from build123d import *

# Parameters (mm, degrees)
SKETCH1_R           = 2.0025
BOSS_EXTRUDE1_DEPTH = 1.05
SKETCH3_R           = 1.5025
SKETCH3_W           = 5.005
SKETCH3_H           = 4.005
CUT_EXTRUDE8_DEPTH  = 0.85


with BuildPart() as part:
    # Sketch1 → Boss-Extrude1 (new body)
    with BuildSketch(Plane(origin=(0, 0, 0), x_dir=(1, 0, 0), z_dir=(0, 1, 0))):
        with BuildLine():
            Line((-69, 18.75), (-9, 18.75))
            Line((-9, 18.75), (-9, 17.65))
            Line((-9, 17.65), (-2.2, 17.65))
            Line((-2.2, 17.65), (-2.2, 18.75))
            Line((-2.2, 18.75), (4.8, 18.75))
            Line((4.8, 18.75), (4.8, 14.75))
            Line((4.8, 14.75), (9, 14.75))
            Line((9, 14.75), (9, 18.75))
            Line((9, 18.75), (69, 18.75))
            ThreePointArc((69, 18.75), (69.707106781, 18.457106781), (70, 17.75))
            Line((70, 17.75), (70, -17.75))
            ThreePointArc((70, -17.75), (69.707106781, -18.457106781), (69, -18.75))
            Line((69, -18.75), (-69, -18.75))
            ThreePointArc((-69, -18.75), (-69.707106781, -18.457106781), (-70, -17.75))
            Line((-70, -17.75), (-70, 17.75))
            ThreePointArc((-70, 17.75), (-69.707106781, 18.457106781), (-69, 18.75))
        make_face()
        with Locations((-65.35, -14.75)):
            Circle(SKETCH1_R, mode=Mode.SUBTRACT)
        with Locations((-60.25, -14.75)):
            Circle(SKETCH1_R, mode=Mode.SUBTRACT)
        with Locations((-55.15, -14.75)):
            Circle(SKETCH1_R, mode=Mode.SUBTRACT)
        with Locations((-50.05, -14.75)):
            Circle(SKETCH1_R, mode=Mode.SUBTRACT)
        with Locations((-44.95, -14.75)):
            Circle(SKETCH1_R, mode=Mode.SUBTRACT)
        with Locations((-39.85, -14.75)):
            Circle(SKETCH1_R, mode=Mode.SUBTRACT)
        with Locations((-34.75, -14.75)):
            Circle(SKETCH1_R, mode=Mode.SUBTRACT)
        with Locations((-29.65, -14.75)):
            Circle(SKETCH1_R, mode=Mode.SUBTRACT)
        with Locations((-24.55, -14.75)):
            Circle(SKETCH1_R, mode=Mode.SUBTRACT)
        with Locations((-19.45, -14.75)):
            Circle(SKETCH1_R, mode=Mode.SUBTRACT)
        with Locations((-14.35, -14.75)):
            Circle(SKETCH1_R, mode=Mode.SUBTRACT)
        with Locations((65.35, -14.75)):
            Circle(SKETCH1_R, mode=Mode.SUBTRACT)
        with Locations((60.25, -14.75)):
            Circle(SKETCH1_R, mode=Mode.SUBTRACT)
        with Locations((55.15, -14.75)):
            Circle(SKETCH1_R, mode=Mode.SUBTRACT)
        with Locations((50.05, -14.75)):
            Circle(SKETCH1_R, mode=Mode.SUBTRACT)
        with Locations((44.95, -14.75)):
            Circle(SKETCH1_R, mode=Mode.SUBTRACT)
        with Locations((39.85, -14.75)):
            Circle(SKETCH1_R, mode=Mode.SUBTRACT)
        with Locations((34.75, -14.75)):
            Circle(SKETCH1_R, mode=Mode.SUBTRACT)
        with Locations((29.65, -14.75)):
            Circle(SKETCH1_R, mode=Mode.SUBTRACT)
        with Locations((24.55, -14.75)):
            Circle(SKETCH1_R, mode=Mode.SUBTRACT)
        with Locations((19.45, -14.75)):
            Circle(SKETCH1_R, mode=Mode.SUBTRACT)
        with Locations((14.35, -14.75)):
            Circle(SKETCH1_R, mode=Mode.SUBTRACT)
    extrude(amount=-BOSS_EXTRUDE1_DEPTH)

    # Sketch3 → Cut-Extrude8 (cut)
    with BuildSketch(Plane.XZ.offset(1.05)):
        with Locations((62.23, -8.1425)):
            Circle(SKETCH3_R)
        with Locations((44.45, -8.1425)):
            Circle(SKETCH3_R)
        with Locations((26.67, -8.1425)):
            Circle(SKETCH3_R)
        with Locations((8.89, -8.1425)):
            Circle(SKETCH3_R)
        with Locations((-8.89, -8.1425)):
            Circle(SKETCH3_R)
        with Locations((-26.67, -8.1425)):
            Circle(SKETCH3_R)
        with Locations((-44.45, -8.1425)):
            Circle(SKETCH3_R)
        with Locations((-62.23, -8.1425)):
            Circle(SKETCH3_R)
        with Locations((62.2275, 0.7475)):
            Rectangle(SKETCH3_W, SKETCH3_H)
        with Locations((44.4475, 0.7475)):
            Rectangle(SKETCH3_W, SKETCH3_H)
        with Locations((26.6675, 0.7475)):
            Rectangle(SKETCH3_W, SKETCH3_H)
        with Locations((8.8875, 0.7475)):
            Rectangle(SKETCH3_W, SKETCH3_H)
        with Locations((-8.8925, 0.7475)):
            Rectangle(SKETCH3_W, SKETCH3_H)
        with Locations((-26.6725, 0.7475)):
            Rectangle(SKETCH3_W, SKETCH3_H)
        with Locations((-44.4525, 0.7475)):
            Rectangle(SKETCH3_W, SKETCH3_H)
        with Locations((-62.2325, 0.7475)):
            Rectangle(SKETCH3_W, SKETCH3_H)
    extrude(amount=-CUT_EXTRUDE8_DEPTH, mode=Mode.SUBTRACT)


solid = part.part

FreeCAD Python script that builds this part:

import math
import FreeCAD as App
import Part
import Sketcher
Q = App.Units.Quantity

doc = App.newDocument("Part")
body = doc.addObject("PartDesign::Body", "Body")

# Sketch on XZ plane
sketch1 = body.newObject("Sketcher::SketchObject", "Sketch")
sketch1.AttachmentSupport = (doc.getObject("XZ_Plane"), [""])
sketch1.MapMode = "FlatFace"
sketch1.addGeometry([
    Part.LineSegment(App.Vector(-9, -18.8, 0), App.Vector(-69, -18.8, 0)),  # 0
    Part.ArcOfCircle(Part.Circle(App.Vector(-69, -17.7, 0), App.Vector(0, 0, 1), 1), math.radians(-180), math.radians(-90)),  # 1
    Part.LineSegment(App.Vector(-70, -17.8, 0), App.Vector(-70, 17.8, 0)),  # 2
    Part.ArcOfCircle(Part.Circle(App.Vector(-69, 17.7, 0), App.Vector(0, 0, 1), 1), math.radians(90), math.radians(180)),  # 3
    Part.LineSegment(App.Vector(-69, 18.8, 0), App.Vector(69, 18.8, 0)),  # 4
    Part.ArcOfCircle(Part.Circle(App.Vector(69, 17.7, 0), App.Vector(0, 0, 1), 1), math.radians(0), math.radians(90)),  # 5
    Part.LineSegment(App.Vector(70, 17.8, 0), App.Vector(70, -17.8, 0)),  # 6
    Part.ArcOfCircle(Part.Circle(App.Vector(69, -17.7, 0), App.Vector(0, 0, 1), 1), math.radians(-90), math.radians(0)),  # 7
    Part.LineSegment(App.Vector(69, -18.8, 0), App.Vector(9, -18.8, 0)),  # 8
    Part.LineSegment(App.Vector(9, -18.8, 0), App.Vector(9, -14.8, 0)),  # 9
    Part.LineSegment(App.Vector(9, -14.8, 0), App.Vector(4.8, -14.8, 0)),  # 10
    Part.LineSegment(App.Vector(4.8, -14.8, 0), App.Vector(4.8, -18.8, 0)),  # 11
    Part.LineSegment(App.Vector(4.8, -18.8, 0), App.Vector(-2.2, -18.8, 0)),  # 12
    Part.LineSegment(App.Vector(-2.2, -18.8, 0), App.Vector(-2.2, -17.6, 0)),  # 13
    Part.LineSegment(App.Vector(-2.2, -17.6, 0), App.Vector(-9, -17.6, 0)),  # 14
    Part.LineSegment(App.Vector(-9, -17.6, 0), App.Vector(-9, -18.8, 0)),  # 15
    Part.Circle(App.Vector(65.3, 14.8, 0), App.Vector(0, 0, 1), 2),  # 16
    Part.Circle(App.Vector(60.2, 14.8, 0), App.Vector(0, 0, 1), 2),  # 17
    Part.Circle(App.Vector(55.1, 14.8, 0), App.Vector(0, 0, 1), 2),  # 18
    Part.Circle(App.Vector(50, 14.8, 0), App.Vector(0, 0, 1), 2),  # 19
    Part.Circle(App.Vector(45, 14.8, 0), App.Vector(0, 0, 1), 2),  # 20
    Part.Circle(App.Vector(39.9, 14.8, 0), App.Vector(0, 0, 1), 2),  # 21
    Part.Circle(App.Vector(34.8, 14.8, 0), App.Vector(0, 0, 1), 2),  # 22
    Part.Circle(App.Vector(14.3, 14.8, 0), App.Vector(0, 0, 1), 2),  # 23
    Part.Circle(App.Vector(-14.3, 14.8, 0), App.Vector(0, 0, 1), 2),  # 24
    Part.Circle(App.Vector(-34.8, 14.8, 0), App.Vector(0, 0, 1), 2),  # 25
    Part.Circle(App.Vector(-39.9, 14.8, 0), App.Vector(0, 0, 1), 2),  # 26
    Part.Circle(App.Vector(-45, 14.8, 0), App.Vector(0, 0, 1), 2),  # 27
    Part.Circle(App.Vector(-50, 14.8, 0), App.Vector(0, 0, 1), 2),  # 28
    Part.Circle(App.Vector(-55.1, 14.8, 0), App.Vector(0, 0, 1), 2),  # 29
    Part.Circle(App.Vector(-60.2, 14.8, 0), App.Vector(0, 0, 1), 2),  # 30
    Part.Circle(App.Vector(-65.3, 14.8, 0), App.Vector(0, 0, 1), 2),  # 31
    Part.Circle(App.Vector(29.6, 14.8, 0), App.Vector(0, 0, 1), 2),  # 32
    Part.Circle(App.Vector(24.6, 14.8, 0), App.Vector(0, 0, 1), 2),  # 33
    Part.Circle(App.Vector(19.4, 14.8, 0), App.Vector(0, 0, 1), 2),  # 34
    Part.Circle(App.Vector(-19.4, 14.8, 0), App.Vector(0, 0, 1), 2),  # 35
    Part.Circle(App.Vector(-24.6, 14.8, 0), App.Vector(0, 0, 1), 2),  # 36
    Part.Circle(App.Vector(-29.6, 14.8, 0), App.Vector(0, 0, 1), 2),  # 37
], False)
sketch1.addConstraint([
    Sketcher.Constraint("Tangent", 0, 2, 1, 2),
    Sketcher.Constraint("Tangent", 1, 1, 2, 1),
    Sketcher.Constraint("Tangent", 2, 2, 3, 2),
    Sketcher.Constraint("Tangent", 3, 1, 4, 1),
    Sketcher.Constraint("Tangent", 4, 2, 5, 2),
    Sketcher.Constraint("Tangent", 5, 1, 6, 1),
    Sketcher.Constraint("Tangent", 6, 2, 7, 2),
    Sketcher.Constraint("Tangent", 7, 1, 8, 1),
    Sketcher.Constraint("Coincident", 8, 2, 9, 1),
    Sketcher.Constraint("Coincident", 9, 2, 10, 1),
    Sketcher.Constraint("Coincident", 10, 2, 11, 1),
    Sketcher.Constraint("Coincident", 11, 2, 12, 1),
    Sketcher.Constraint("Coincident", 12, 2, 13, 1),
    Sketcher.Constraint("Coincident", 13, 2, 14, 1),
    Sketcher.Constraint("Coincident", 14, 2, 15, 1),
    Sketcher.Constraint("Coincident", 15, 2, 0, 1),
    Sketcher.Constraint("Horizontal", 0),
    Sketcher.Constraint("Vertical", 2),
    Sketcher.Constraint("Horizontal", 4),
    Sketcher.Constraint("Vertical", 6),
    Sketcher.Constraint("Horizontal", 8),
    Sketcher.Constraint("Vertical", 9),
    Sketcher.Constraint("Horizontal", 10),
    Sketcher.Constraint("Vertical", 11),
    Sketcher.Constraint("Horizontal", 12),
    Sketcher.Constraint("Vertical", 13),
    Sketcher.Constraint("Horizontal", 14),
    Sketcher.Constraint("Vertical", 15),
    Sketcher.Constraint("Equal", 1, 3),
    Sketcher.Constraint("Equal", 3, 5),
    Sketcher.Constraint("Equal", 5, 7),
    Sketcher.Constraint("Equal", 16, 17),
    Sketcher.Constraint("Equal", 17, 18),
    Sketcher.Constraint("Equal", 18, 19),
    Sketcher.Constraint("Equal", 19, 20),
    Sketcher.Constraint("Equal", 20, 21),
    Sketcher.Constraint("Equal", 21, 22),
    Sketcher.Constraint("Equal", 22, 23),
    Sketcher.Constraint("Equal", 23, 24),
    Sketcher.Constraint("Equal", 24, 25),
    Sketcher.Constraint("Equal", 25, 26),
    Sketcher.Constraint("Equal", 26, 27),
    Sketcher.Constraint("Equal", 27, 28),
    Sketcher.Constraint("Equal", 28, 29),
    Sketcher.Constraint("Equal", 29, 30),
    Sketcher.Constraint("Equal", 30, 31),
    Sketcher.Constraint("Equal", 31, 32),
    Sketcher.Constraint("Equal", 32, 33),
    Sketcher.Constraint("Equal", 33, 34),
    Sketcher.Constraint("Equal", 34, 35),
    Sketcher.Constraint("Equal", 35, 36),
    Sketcher.Constraint("Equal", 36, 37),
    Sketcher.Constraint("Symmetric", 1, 3, 5, 3, -1, 1),
    Sketcher.Constraint("Symmetric", 23, 3, 24, 3, -2),
    Sketcher.Constraint("Symmetric", 22, 3, 25, 3, -2),
    Sketcher.Constraint("Symmetric", 21, 3, 26, 3, -2),
    Sketcher.Constraint("Symmetric", 20, 3, 27, 3, -2),
    Sketcher.Constraint("Symmetric", 19, 3, 28, 3, -2),
    Sketcher.Constraint("Symmetric", 18, 3, 29, 3, -2),
    Sketcher.Constraint("Symmetric", 17, 3, 30, 3, -2),
    Sketcher.Constraint("Symmetric", 16, 3, 31, 3, -2),
    Sketcher.Constraint("Symmetric", 34, 3, 35, 3, -2),
    Sketcher.Constraint("Symmetric", 33, 3, 36, 3, -2),
    Sketcher.Constraint("Symmetric", 32, 3, 37, 3, -2),
    Sketcher.Constraint("Symmetric", 8, 2, 15, 2, -2),
    Sketcher.Constraint("Horizontal", 16, 3, 17, 3),
    Sketcher.Constraint("Horizontal", 17, 3, 18, 3),
    Sketcher.Constraint("Horizontal", 18, 3, 19, 3),
    Sketcher.Constraint("Horizontal", 19, 3, 20, 3),
    Sketcher.Constraint("Horizontal", 20, 3, 21, 3),
    Sketcher.Constraint("Horizontal", 21, 3, 22, 3),
    Sketcher.Constraint("Horizontal", 22, 3, 23, 3),
    Sketcher.Constraint("Horizontal", 31, 3, 32, 3),
    Sketcher.Constraint("Horizontal", 32, 3, 33, 3),
    Sketcher.Constraint("Horizontal", 33, 3, 34, 3),
    Sketcher.Constraint("Horizontal", 8, 2, 11, 2),
    Sketcher.Constraint("Radius", 1, Q("1 mm")),
    Sketcher.Constraint("DistanceX", 0, 2, 0, 1, Q("60 mm")),
    Sketcher.Constraint("DistanceX", 4, 1, 4, 2, Q("138 mm")),
    Sketcher.Constraint("DistanceX", 12, 2, 12, 1, Q("7 mm")),
    Sketcher.Constraint("DistanceY", 9, 1, 9, 2, Q("4 mm")),
    Sketcher.Constraint("Diameter", 16, Q("4.005 mm")),
    Sketcher.Constraint("DistanceX", 10, 2, 10, 1, Q("4.2 mm")),
    Sketcher.Constraint("DistanceY", 2, 1, 2, 2, Q("35.5 mm")),
    Sketcher.Constraint("DistanceY", 13, 1, 13, 2, Q("1.1 mm")),
    Sketcher.Constraint("DistanceY", 16, 3, 5, 3, Q("3 mm")),
    Sketcher.Constraint("DistanceX", 17, 3, 16, 3, Q("5.1 mm")),
    Sketcher.Constraint("DistanceX", 18, 3, 17, 3, Q("5.1 mm")),
    Sketcher.Constraint("DistanceX", 19, 3, 18, 3, Q("5.1 mm")),
    Sketcher.Constraint("DistanceX", 20, 3, 19, 3, Q("5.1 mm")),
    Sketcher.Constraint("DistanceX", 21, 3, 20, 3, Q("5.1 mm")),
    Sketcher.Constraint("DistanceX", 22, 3, 21, 3, Q("5.1 mm")),
    Sketcher.Constraint("DistanceX", 23, 3, 22, 3, Q("20.4 mm")),
    Sketcher.Constraint("DistanceX", 24, 3, 23, 3, Q("28.7 mm")),
    Sketcher.Constraint("DistanceX", 32, 3, 22, 3, Q("5.1 mm")),
    Sketcher.Constraint("DistanceX", 33, 3, 32, 3, Q("5.1 mm")),
    Sketcher.Constraint("DistanceX", 23, 3, 34, 3, Q("5.1 mm")),
])
pad1 = body.newObject("PartDesign::Pad", "Pad")
pad1.Profile = sketch1
pad1.Length = 1.05

# Sketch on XZ plane
sketch2 = body.newObject("Sketcher::SketchObject", "Sketch001")
sketch2.AttachmentSupport = (doc.getObject("XZ_Plane"), [""])
sketch2.MapMode = "FlatFace"
sketch2.AttachmentOffset = App.Placement(App.Vector(0, 0, 1.05), App.Rotation())
sketch2.addGeometry([
    Part.Circle(App.Vector(62.2, -8.1, 0), App.Vector(0, 0, 1), 1.5),  # 0
    Part.Circle(App.Vector(44.5, -8.1, 0), App.Vector(0, 0, 1), 1.5),  # 1
    Part.Circle(App.Vector(26.7, -8.1, 0), App.Vector(0, 0, 1), 1.5),  # 2
    Part.Circle(App.Vector(8.9, -8.1, 0), App.Vector(0, 0, 1), 1.5),  # 3
    Part.Circle(App.Vector(-8.9, -8.1, 0), App.Vector(0, 0, 1), 1.5),  # 4
    Part.Circle(App.Vector(-26.7, -8.1, 0), App.Vector(0, 0, 1), 1.5),  # 5
    Part.Circle(App.Vector(-44.5, -8.1, 0), App.Vector(0, 0, 1), 1.5),  # 6
    Part.Circle(App.Vector(-62.2, -8.1, 0), App.Vector(0, 0, 1), 1.5),  # 7
    Part.LineSegment(App.Vector(59.7, 2.8, 0), App.Vector(59.7, -1.3, 0)),  # 8
    Part.LineSegment(App.Vector(59.7, -1.3, 0), App.Vector(64.7, -1.3, 0)),  # 9
    Part.LineSegment(App.Vector(64.7, -1.3, 0), App.Vector(64.7, 2.8, 0)),  # 10
    Part.LineSegment(App.Vector(64.7, 2.8, 0), App.Vector(59.7, 2.8, 0)),  # 11
    Part.LineSegment(App.Vector(41.9, 2.8, 0), App.Vector(41.9, -1.3, 0)),  # 12
    Part.LineSegment(App.Vector(41.9, -1.3, 0), App.Vector(47, -1.3, 0)),  # 13
    Part.LineSegment(App.Vector(47, -1.3, 0), App.Vector(47, 2.8, 0)),  # 14
    Part.LineSegment(App.Vector(47, 2.8, 0), App.Vector(41.9, 2.8, 0)),  # 15
    Part.LineSegment(App.Vector(24.2, 2.8, 0), App.Vector(24.2, -1.3, 0)),  # 16
    Part.LineSegment(App.Vector(24.2, -1.3, 0), App.Vector(29.2, -1.3, 0)),  # 17
    Part.LineSegment(App.Vector(29.2, -1.3, 0), App.Vector(29.2, 2.8, 0)),  # 18
    Part.LineSegment(App.Vector(29.2, 2.8, 0), App.Vector(24.2, 2.8, 0)),  # 19
    Part.LineSegment(App.Vector(6.4, 2.8, 0), App.Vector(6.4, -1.3, 0)),  # 20
    Part.LineSegment(App.Vector(6.4, -1.3, 0), App.Vector(11.4, -1.3, 0)),  # 21
    Part.LineSegment(App.Vector(11.4, -1.3, 0), App.Vector(11.4, 2.8, 0)),  # 22
    Part.LineSegment(App.Vector(11.4, 2.8, 0), App.Vector(6.4, 2.8, 0)),  # 23
    Part.LineSegment(App.Vector(-11.4, 2.8, 0), App.Vector(-11.4, -1.3, 0)),  # 24
    Part.LineSegment(App.Vector(-11.4, -1.3, 0), App.Vector(-6.4, -1.3, 0)),  # 25
    Part.LineSegment(App.Vector(-6.4, -1.3, 0), App.Vector(-6.4, 2.8, 0)),  # 26
    Part.LineSegment(App.Vector(-6.4, 2.8, 0), App.Vector(-11.4, 2.8, 0)),  # 27
    Part.LineSegment(App.Vector(-29.2, 2.8, 0), App.Vector(-29.2, -1.3, 0)),  # 28
    Part.LineSegment(App.Vector(-29.2, -1.3, 0), App.Vector(-24.2, -1.3, 0)),  # 29
    Part.LineSegment(App.Vector(-24.2, -1.3, 0), App.Vector(-24.2, 2.8, 0)),  # 30
    Part.LineSegment(App.Vector(-24.2, 2.8, 0), App.Vector(-29.2, 2.8, 0)),  # 31
    Part.LineSegment(App.Vector(-47, 2.8, 0), App.Vector(-47, -1.3, 0)),  # 32
    Part.LineSegment(App.Vector(-47, -1.3, 0), App.Vector(-42, -1.3, 0)),  # 33
    Part.LineSegment(App.Vector(-42, -1.3, 0), App.Vector(-42, 2.8, 0)),  # 34
    Part.LineSegment(App.Vector(-42, 2.8, 0), App.Vector(-47, 2.8, 0)),  # 35
    Part.LineSegment(App.Vector(-64.7, 2.8, 0), App.Vector(-64.7, -1.3, 0)),  # 36
    Part.LineSegment(App.Vector(-64.7, -1.3, 0), App.Vector(-59.7, -1.3, 0)),  # 37
    Part.LineSegment(App.Vector(-59.7, -1.3, 0), App.Vector(-59.7, 2.8, 0)),  # 38
    Part.LineSegment(App.Vector(-59.7, 2.8, 0), App.Vector(-64.7, 2.8, 0)),  # 39
], False)
sketch2.addConstraint([
    Sketcher.Constraint("Coincident", 8, 2, 9, 1),
    Sketcher.Constraint("Coincident", 9, 2, 10, 1),
    Sketcher.Constraint("Coincident", 10, 2, 11, 1),
    Sketcher.Constraint("Coincident", 11, 2, 8, 1),
    Sketcher.Constraint("Coincident", 12, 2, 13, 1),
    Sketcher.Constraint("Coincident", 13, 2, 14, 1),
    Sketcher.Constraint("Coincident", 14, 2, 15, 1),
    Sketcher.Constraint("Coincident", 15, 2, 12, 1),
    Sketcher.Constraint("Coincident", 16, 2, 17, 1),
    Sketcher.Constraint("Coincident", 17, 2, 18, 1),
    Sketcher.Constraint("Coincident", 18, 2, 19, 1),
    Sketcher.Constraint("Coincident", 19, 2, 16, 1),
    Sketcher.Constraint("Coincident", 20, 2, 21, 1),
    Sketcher.Constraint("Coincident", 21, 2, 22, 1),
    Sketcher.Constraint("Coincident", 22, 2, 23, 1),
    Sketcher.Constraint("Coincident", 23, 2, 20, 1),
    Sketcher.Constraint("Coincident", 24, 2, 25, 1),
    Sketcher.Constraint("Coincident", 25, 2, 26, 1),
    Sketcher.Constraint("Coincident", 26, 2, 27, 1),
    Sketcher.Constraint("Coincident", 27, 2, 24, 1),
    Sketcher.Constraint("Coincident", 28, 2, 29, 1),
    Sketcher.Constraint("Coincident", 29, 2, 30, 1),
    Sketcher.Constraint("Coincident", 30, 2, 31, 1),
    Sketcher.Constraint("Coincident", 31, 2, 28, 1),
    Sketcher.Constraint("Coincident", 32, 2, 33, 1),
    Sketcher.Constraint("Coincident", 33, 2, 34, 1),
    Sketcher.Constraint("Coincident", 34, 2, 35, 1),
    Sketcher.Constraint("Coincident", 35, 2, 32, 1),
    Sketcher.Constraint("Coincident", 36, 2, 37, 1),
    Sketcher.Constraint("Coincident", 37, 2, 38, 1),
    Sketcher.Constraint("Coincident", 38, 2, 39, 1),
    Sketcher.Constraint("Coincident", 39, 2, 36, 1),
    Sketcher.Constraint("Vertical", 8),
    Sketcher.Constraint("Horizontal", 9),
    Sketcher.Constraint("Vertical", 10),
    Sketcher.Constraint("Horizontal", 11),
    Sketcher.Constraint("Vertical", 12),
    Sketcher.Constraint("Horizontal", 13),
    Sketcher.Constraint("Vertical", 14),
    Sketcher.Constraint("Horizontal", 15),
    Sketcher.Constraint("Vertical", 16),
    Sketcher.Constraint("Horizontal", 17),
    Sketcher.Constraint("Vertical", 18),
    Sketcher.Constraint("Horizontal", 19),
    Sketcher.Constraint("Vertical", 20),
    Sketcher.Constraint("Horizontal", 21),
    Sketcher.Constraint("Vertical", 22),
    Sketcher.Constraint("Horizontal", 23),
    Sketcher.Constraint("Vertical", 24),
    Sketcher.Constraint("Horizontal", 25),
    Sketcher.Constraint("Vertical", 26),
    Sketcher.Constraint("Horizontal", 27),
    Sketcher.Constraint("Vertical", 28),
    Sketcher.Constraint("Horizontal", 29),
    Sketcher.Constraint("Vertical", 30),
    Sketcher.Constraint("Horizontal", 31),
    Sketcher.Constraint("Vertical", 32),
    Sketcher.Constraint("Horizontal", 33),
    Sketcher.Constraint("Vertical", 34),
    Sketcher.Constraint("Horizontal", 35),
    Sketcher.Constraint("Vertical", 36),
    Sketcher.Constraint("Horizontal", 37),
    Sketcher.Constraint("Vertical", 38),
    Sketcher.Constraint("Horizontal", 39),
    Sketcher.Constraint("Equal", 0, 1),
    Sketcher.Constraint("Equal", 1, 2),
    Sketcher.Constraint("Equal", 2, 3),
    Sketcher.Constraint("Equal", 3, 4),
    Sketcher.Constraint("Equal", 4, 5),
    Sketcher.Constraint("Equal", 5, 6),
    Sketcher.Constraint("Equal", 6, 7),
    Sketcher.Constraint("Symmetric", 3, 3, 4, 3, -2),
    Sketcher.Constraint("Symmetric", 2, 3, 5, 3, -2),
    Sketcher.Constraint("Symmetric", 1, 3, 6, 3, -2),
    Sketcher.Constraint("Symmetric", 0, 3, 7, 3, -2),
    Sketcher.Constraint("Horizontal", 0, 3, 1, 3),
    Sketcher.Constraint("Horizontal", 1, 3, 2, 3),
    Sketcher.Constraint("Horizontal", 2, 3, 3, 3),
    Sketcher.Constraint("Horizontal", 9, 2, 12, 2),
    Sketcher.Constraint("Horizontal", 11, 2, 14, 2),
    Sketcher.Constraint("Horizontal", 13, 2, 16, 2),
    Sketcher.Constraint("Horizontal", 15, 2, 18, 2),
    Sketcher.Constraint("Horizontal", 17, 2, 20, 2),
    Sketcher.Constraint("Horizontal", 19, 2, 22, 2),
    Sketcher.Constraint("Horizontal", 21, 2, 24, 2),
    Sketcher.Constraint("Horizontal", 23, 2, 26, 2),
    Sketcher.Constraint("Horizontal", 25, 2, 28, 2),
    Sketcher.Constraint("Horizontal", 27, 2, 30, 2),
    Sketcher.Constraint("Horizontal", 29, 2, 32, 2),
    Sketcher.Constraint("Horizontal", 31, 2, 34, 2),
    Sketcher.Constraint("Horizontal", 33, 2, 36, 2),
    Sketcher.Constraint("Horizontal", 35, 2, 38, 2),
    Sketcher.Constraint("Equal", 11, 13),
    Sketcher.Constraint("Equal", 15, 17),
    Sketcher.Constraint("Equal", 19, 21),
    Sketcher.Constraint("Equal", 23, 25),
    Sketcher.Constraint("Equal", 27, 29),
    Sketcher.Constraint("Equal", 31, 33),
    Sketcher.Constraint("Equal", 35, 37),
    Sketcher.Constraint("Diameter", 0, Q("3.005 mm")),
    Sketcher.Constraint("DistanceX", 5, 3, 0, 3, Q("88.9 mm")),
    Sketcher.Constraint("DistanceX", 6, 3, 1, 3, Q("88.9 mm")),
    Sketcher.Constraint("DistanceX", 0, 3, 9, 2, Q("2.5 mm")),
    Sketcher.Constraint("DistanceX", 1, 3, 13, 2, Q("2.5 mm")),
    Sketcher.Constraint("DistanceX", 2, 3, 17, 2, Q("2.5 mm")),
    Sketcher.Constraint("DistanceX", 3, 3, 21, 2, Q("2.5 mm")),
    Sketcher.Constraint("DistanceX", 4, 3, 25, 2, Q("2.5 mm")),
    Sketcher.Constraint("DistanceX", 5, 3, 29, 2, Q("2.5 mm")),
    Sketcher.Constraint("DistanceX", 6, 3, 33, 2, Q("2.5 mm")),
    Sketcher.Constraint("DistanceX", 7, 3, 37, 2, Q("2.5 mm")),
    Sketcher.Constraint("DistanceX", 9, 1, 9, 2, Q("5.005 mm")),
    Sketcher.Constraint("DistanceY", 8, 2, 8, 1, Q("4.005 mm")),
    Sketcher.Constraint("DistanceX", -1, 1, 0, 3, Q("62.23 mm")),
    Sketcher.Constraint("DistanceX", -1, 1, 3, 3, Q("8.89 mm")),
    Sketcher.Constraint("DistanceY", -1, 1, 10, 2, Q("2.75 mm")),
    Sketcher.Constraint("DistanceY", 0, 3, -1, 1, Q("8.1425 mm")),
])
pocket1 = body.newObject("PartDesign::Pocket", "Pocket")
pocket1.Profile = sketch2
pocket1.Length = 0.85

doc.recompute()
